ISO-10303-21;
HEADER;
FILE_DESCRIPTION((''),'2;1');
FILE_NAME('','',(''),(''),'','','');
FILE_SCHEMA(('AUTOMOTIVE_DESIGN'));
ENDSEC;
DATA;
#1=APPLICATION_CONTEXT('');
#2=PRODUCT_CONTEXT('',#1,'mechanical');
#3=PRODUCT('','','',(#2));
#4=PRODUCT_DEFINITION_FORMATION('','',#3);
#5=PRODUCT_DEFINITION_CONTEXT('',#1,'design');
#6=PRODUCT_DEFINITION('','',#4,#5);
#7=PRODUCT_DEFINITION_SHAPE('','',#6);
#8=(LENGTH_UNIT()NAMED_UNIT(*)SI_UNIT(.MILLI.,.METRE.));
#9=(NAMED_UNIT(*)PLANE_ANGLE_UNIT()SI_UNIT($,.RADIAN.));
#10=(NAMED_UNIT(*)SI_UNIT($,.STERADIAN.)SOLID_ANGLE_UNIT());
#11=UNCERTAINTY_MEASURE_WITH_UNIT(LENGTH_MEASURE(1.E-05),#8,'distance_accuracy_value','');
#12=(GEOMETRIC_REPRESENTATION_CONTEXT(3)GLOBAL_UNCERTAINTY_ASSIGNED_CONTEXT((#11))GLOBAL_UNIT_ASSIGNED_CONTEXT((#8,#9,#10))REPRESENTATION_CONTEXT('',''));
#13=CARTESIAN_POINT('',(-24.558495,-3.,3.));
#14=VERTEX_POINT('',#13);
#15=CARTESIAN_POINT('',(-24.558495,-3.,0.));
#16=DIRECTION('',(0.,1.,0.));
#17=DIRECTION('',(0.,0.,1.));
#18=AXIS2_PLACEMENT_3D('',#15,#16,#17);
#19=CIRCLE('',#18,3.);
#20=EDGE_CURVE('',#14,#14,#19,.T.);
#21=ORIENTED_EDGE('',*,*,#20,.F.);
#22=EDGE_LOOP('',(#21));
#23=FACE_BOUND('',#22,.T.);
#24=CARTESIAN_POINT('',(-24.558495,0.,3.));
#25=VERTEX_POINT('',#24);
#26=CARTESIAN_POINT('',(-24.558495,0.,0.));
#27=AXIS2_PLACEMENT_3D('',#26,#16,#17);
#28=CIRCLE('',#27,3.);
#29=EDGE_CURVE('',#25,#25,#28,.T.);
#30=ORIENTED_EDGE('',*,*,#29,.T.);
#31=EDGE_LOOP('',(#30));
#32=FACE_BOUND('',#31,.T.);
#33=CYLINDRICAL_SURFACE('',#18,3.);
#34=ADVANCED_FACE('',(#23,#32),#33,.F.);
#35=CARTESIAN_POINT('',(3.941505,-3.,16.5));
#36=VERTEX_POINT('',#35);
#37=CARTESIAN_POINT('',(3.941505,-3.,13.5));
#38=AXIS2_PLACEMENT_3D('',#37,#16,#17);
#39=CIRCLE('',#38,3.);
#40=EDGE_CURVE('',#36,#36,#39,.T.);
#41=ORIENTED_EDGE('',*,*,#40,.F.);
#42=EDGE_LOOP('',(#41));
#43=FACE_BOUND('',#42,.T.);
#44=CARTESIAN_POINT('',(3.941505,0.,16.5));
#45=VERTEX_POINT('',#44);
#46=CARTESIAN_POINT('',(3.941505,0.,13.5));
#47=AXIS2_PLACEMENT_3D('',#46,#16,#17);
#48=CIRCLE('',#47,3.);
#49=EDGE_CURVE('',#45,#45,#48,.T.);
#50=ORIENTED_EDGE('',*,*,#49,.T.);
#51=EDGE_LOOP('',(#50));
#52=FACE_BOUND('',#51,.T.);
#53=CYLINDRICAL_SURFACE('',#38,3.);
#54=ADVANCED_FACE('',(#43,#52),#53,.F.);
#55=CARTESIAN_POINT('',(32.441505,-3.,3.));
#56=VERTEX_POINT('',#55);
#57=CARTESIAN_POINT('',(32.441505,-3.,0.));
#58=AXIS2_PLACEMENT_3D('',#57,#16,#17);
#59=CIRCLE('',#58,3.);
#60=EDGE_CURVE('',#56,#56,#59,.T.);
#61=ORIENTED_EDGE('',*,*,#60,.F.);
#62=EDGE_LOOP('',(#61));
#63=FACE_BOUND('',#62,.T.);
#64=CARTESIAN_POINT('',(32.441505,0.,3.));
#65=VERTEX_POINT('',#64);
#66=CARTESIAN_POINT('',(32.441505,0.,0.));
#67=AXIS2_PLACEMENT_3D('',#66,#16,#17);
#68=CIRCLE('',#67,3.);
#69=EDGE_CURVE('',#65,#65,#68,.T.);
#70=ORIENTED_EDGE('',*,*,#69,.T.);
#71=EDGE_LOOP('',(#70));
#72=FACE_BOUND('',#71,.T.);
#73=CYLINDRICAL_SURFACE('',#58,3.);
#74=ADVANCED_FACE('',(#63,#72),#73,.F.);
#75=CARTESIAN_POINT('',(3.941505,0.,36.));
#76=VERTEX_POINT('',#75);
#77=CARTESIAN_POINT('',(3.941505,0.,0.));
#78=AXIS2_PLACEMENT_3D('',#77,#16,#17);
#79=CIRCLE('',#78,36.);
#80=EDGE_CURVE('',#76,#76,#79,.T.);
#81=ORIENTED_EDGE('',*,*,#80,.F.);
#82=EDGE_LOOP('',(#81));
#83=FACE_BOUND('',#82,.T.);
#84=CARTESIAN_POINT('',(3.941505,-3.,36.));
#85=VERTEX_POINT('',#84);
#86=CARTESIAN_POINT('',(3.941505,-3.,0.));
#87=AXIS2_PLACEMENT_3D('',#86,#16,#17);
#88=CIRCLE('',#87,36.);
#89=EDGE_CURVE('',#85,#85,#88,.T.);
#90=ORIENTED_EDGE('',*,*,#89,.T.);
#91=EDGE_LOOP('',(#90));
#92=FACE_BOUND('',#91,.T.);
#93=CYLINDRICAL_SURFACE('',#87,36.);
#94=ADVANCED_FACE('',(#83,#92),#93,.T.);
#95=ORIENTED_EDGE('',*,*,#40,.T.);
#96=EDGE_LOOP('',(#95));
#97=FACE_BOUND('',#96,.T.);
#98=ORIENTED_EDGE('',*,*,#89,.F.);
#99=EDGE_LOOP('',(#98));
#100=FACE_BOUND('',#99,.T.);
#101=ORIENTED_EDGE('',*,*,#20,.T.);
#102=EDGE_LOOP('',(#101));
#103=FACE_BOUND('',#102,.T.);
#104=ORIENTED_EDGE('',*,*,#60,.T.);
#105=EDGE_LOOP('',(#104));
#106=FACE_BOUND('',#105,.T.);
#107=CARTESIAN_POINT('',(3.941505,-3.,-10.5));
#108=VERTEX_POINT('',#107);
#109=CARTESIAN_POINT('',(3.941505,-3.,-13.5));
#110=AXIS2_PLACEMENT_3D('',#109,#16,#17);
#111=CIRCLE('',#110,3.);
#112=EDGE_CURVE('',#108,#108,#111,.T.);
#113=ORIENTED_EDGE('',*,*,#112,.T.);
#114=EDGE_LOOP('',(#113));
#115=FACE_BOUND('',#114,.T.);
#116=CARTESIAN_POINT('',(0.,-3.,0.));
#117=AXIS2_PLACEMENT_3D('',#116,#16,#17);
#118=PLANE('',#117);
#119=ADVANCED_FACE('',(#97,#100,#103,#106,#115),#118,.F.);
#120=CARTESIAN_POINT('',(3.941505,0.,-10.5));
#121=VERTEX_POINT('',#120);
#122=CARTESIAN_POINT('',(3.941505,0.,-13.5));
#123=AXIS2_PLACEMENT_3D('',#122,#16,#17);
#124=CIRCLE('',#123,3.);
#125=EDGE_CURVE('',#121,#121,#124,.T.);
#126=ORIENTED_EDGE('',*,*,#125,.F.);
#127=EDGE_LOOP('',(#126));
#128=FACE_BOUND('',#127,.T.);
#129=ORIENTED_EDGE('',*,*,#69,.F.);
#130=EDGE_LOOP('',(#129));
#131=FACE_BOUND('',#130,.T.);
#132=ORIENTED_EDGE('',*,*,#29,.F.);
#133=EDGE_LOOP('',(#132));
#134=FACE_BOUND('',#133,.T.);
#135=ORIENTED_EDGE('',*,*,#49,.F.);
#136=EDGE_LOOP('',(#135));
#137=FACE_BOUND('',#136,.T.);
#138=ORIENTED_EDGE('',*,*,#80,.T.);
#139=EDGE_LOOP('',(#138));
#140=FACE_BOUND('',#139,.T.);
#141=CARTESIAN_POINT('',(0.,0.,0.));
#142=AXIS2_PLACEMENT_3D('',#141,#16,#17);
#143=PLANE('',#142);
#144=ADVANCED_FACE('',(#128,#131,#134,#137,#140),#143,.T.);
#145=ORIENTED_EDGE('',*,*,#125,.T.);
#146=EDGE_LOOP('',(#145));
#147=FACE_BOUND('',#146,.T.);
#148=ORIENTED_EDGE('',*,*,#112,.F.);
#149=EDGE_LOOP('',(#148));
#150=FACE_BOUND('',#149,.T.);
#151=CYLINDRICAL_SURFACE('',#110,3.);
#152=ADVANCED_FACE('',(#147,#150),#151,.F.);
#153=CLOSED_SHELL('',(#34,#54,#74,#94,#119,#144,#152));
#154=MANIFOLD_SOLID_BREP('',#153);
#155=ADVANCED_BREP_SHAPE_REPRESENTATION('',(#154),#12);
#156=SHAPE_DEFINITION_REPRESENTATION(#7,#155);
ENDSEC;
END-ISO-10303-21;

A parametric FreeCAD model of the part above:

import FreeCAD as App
import Part
import Sketcher

doc = App.newDocument("Part")
body = doc.addObject("PartDesign::Body", "Body")

# Sketch on XZ plane
sketch1 = body.newObject("Sketcher::SketchObject", "Sketch")
sketch1.AttachmentSupport = (doc.getObject("XZ_Plane"), [""])
sketch1.MapMode = "FlatFace"
sketch1.addGeometry([
    Part.Circle(App.Vector(3.9, 0, 0), App.Vector(0, 0, 1), 36),  # 0
    Part.Circle(App.Vector(3.9, -13.5, 0), App.Vector(0, 0, 1), 3),  # 1
    Part.Circle(App.Vector(-24.6, 0, 0), App.Vector(0, 0, 1), 3),  # 2
    Part.Circle(App.Vector(32.4, 0, 0), App.Vector(0, 0, 1), 3),  # 3
    Part.Circle(App.Vector(3.9, 13.5, 0), App.Vector(0, 0, 1), 3),  # 4
], False)
sketch1.addConstraint([
    Sketcher.Constraint("Equal", 1, 2),
    Sketcher.Constraint("Equal", 2, 3),
    Sketcher.Constraint("Equal", 3, 4),
    Sketcher.Constraint("Symmetric", 1, 3, 4, 3, -1),
    Sketcher.Constraint("PointOnObject", 0, 3, -1),
    Sketcher.Constraint("PointOnObject", 2, 3, -1),
    Sketcher.Constraint("PointOnObject", 3, 3, -1),
    Sketcher.Constraint("Vertical", 0, 3, 1, 3),
    Sketcher.Constraint("Diameter", 0, 72.0),
    Sketcher.Constraint("Diameter", 1, 6.0),
    Sketcher.Constraint("DistanceX", 2, 3, 3, 3, 57.0),
    Sketcher.Constraint("DistanceY", 1, 3, 4, 3, 27.0),
    Sketcher.Constraint("DistanceX", 2, 3, 0, 3, 28.5),
    Sketcher.Constraint("DistanceX", -1, 1, 0, 3, 3.941505),
])
pad1 = body.newObject("PartDesign::Pad", "Pad")
pad1.Profile = sketch1
pad1.Length = 3

doc.recompute()
